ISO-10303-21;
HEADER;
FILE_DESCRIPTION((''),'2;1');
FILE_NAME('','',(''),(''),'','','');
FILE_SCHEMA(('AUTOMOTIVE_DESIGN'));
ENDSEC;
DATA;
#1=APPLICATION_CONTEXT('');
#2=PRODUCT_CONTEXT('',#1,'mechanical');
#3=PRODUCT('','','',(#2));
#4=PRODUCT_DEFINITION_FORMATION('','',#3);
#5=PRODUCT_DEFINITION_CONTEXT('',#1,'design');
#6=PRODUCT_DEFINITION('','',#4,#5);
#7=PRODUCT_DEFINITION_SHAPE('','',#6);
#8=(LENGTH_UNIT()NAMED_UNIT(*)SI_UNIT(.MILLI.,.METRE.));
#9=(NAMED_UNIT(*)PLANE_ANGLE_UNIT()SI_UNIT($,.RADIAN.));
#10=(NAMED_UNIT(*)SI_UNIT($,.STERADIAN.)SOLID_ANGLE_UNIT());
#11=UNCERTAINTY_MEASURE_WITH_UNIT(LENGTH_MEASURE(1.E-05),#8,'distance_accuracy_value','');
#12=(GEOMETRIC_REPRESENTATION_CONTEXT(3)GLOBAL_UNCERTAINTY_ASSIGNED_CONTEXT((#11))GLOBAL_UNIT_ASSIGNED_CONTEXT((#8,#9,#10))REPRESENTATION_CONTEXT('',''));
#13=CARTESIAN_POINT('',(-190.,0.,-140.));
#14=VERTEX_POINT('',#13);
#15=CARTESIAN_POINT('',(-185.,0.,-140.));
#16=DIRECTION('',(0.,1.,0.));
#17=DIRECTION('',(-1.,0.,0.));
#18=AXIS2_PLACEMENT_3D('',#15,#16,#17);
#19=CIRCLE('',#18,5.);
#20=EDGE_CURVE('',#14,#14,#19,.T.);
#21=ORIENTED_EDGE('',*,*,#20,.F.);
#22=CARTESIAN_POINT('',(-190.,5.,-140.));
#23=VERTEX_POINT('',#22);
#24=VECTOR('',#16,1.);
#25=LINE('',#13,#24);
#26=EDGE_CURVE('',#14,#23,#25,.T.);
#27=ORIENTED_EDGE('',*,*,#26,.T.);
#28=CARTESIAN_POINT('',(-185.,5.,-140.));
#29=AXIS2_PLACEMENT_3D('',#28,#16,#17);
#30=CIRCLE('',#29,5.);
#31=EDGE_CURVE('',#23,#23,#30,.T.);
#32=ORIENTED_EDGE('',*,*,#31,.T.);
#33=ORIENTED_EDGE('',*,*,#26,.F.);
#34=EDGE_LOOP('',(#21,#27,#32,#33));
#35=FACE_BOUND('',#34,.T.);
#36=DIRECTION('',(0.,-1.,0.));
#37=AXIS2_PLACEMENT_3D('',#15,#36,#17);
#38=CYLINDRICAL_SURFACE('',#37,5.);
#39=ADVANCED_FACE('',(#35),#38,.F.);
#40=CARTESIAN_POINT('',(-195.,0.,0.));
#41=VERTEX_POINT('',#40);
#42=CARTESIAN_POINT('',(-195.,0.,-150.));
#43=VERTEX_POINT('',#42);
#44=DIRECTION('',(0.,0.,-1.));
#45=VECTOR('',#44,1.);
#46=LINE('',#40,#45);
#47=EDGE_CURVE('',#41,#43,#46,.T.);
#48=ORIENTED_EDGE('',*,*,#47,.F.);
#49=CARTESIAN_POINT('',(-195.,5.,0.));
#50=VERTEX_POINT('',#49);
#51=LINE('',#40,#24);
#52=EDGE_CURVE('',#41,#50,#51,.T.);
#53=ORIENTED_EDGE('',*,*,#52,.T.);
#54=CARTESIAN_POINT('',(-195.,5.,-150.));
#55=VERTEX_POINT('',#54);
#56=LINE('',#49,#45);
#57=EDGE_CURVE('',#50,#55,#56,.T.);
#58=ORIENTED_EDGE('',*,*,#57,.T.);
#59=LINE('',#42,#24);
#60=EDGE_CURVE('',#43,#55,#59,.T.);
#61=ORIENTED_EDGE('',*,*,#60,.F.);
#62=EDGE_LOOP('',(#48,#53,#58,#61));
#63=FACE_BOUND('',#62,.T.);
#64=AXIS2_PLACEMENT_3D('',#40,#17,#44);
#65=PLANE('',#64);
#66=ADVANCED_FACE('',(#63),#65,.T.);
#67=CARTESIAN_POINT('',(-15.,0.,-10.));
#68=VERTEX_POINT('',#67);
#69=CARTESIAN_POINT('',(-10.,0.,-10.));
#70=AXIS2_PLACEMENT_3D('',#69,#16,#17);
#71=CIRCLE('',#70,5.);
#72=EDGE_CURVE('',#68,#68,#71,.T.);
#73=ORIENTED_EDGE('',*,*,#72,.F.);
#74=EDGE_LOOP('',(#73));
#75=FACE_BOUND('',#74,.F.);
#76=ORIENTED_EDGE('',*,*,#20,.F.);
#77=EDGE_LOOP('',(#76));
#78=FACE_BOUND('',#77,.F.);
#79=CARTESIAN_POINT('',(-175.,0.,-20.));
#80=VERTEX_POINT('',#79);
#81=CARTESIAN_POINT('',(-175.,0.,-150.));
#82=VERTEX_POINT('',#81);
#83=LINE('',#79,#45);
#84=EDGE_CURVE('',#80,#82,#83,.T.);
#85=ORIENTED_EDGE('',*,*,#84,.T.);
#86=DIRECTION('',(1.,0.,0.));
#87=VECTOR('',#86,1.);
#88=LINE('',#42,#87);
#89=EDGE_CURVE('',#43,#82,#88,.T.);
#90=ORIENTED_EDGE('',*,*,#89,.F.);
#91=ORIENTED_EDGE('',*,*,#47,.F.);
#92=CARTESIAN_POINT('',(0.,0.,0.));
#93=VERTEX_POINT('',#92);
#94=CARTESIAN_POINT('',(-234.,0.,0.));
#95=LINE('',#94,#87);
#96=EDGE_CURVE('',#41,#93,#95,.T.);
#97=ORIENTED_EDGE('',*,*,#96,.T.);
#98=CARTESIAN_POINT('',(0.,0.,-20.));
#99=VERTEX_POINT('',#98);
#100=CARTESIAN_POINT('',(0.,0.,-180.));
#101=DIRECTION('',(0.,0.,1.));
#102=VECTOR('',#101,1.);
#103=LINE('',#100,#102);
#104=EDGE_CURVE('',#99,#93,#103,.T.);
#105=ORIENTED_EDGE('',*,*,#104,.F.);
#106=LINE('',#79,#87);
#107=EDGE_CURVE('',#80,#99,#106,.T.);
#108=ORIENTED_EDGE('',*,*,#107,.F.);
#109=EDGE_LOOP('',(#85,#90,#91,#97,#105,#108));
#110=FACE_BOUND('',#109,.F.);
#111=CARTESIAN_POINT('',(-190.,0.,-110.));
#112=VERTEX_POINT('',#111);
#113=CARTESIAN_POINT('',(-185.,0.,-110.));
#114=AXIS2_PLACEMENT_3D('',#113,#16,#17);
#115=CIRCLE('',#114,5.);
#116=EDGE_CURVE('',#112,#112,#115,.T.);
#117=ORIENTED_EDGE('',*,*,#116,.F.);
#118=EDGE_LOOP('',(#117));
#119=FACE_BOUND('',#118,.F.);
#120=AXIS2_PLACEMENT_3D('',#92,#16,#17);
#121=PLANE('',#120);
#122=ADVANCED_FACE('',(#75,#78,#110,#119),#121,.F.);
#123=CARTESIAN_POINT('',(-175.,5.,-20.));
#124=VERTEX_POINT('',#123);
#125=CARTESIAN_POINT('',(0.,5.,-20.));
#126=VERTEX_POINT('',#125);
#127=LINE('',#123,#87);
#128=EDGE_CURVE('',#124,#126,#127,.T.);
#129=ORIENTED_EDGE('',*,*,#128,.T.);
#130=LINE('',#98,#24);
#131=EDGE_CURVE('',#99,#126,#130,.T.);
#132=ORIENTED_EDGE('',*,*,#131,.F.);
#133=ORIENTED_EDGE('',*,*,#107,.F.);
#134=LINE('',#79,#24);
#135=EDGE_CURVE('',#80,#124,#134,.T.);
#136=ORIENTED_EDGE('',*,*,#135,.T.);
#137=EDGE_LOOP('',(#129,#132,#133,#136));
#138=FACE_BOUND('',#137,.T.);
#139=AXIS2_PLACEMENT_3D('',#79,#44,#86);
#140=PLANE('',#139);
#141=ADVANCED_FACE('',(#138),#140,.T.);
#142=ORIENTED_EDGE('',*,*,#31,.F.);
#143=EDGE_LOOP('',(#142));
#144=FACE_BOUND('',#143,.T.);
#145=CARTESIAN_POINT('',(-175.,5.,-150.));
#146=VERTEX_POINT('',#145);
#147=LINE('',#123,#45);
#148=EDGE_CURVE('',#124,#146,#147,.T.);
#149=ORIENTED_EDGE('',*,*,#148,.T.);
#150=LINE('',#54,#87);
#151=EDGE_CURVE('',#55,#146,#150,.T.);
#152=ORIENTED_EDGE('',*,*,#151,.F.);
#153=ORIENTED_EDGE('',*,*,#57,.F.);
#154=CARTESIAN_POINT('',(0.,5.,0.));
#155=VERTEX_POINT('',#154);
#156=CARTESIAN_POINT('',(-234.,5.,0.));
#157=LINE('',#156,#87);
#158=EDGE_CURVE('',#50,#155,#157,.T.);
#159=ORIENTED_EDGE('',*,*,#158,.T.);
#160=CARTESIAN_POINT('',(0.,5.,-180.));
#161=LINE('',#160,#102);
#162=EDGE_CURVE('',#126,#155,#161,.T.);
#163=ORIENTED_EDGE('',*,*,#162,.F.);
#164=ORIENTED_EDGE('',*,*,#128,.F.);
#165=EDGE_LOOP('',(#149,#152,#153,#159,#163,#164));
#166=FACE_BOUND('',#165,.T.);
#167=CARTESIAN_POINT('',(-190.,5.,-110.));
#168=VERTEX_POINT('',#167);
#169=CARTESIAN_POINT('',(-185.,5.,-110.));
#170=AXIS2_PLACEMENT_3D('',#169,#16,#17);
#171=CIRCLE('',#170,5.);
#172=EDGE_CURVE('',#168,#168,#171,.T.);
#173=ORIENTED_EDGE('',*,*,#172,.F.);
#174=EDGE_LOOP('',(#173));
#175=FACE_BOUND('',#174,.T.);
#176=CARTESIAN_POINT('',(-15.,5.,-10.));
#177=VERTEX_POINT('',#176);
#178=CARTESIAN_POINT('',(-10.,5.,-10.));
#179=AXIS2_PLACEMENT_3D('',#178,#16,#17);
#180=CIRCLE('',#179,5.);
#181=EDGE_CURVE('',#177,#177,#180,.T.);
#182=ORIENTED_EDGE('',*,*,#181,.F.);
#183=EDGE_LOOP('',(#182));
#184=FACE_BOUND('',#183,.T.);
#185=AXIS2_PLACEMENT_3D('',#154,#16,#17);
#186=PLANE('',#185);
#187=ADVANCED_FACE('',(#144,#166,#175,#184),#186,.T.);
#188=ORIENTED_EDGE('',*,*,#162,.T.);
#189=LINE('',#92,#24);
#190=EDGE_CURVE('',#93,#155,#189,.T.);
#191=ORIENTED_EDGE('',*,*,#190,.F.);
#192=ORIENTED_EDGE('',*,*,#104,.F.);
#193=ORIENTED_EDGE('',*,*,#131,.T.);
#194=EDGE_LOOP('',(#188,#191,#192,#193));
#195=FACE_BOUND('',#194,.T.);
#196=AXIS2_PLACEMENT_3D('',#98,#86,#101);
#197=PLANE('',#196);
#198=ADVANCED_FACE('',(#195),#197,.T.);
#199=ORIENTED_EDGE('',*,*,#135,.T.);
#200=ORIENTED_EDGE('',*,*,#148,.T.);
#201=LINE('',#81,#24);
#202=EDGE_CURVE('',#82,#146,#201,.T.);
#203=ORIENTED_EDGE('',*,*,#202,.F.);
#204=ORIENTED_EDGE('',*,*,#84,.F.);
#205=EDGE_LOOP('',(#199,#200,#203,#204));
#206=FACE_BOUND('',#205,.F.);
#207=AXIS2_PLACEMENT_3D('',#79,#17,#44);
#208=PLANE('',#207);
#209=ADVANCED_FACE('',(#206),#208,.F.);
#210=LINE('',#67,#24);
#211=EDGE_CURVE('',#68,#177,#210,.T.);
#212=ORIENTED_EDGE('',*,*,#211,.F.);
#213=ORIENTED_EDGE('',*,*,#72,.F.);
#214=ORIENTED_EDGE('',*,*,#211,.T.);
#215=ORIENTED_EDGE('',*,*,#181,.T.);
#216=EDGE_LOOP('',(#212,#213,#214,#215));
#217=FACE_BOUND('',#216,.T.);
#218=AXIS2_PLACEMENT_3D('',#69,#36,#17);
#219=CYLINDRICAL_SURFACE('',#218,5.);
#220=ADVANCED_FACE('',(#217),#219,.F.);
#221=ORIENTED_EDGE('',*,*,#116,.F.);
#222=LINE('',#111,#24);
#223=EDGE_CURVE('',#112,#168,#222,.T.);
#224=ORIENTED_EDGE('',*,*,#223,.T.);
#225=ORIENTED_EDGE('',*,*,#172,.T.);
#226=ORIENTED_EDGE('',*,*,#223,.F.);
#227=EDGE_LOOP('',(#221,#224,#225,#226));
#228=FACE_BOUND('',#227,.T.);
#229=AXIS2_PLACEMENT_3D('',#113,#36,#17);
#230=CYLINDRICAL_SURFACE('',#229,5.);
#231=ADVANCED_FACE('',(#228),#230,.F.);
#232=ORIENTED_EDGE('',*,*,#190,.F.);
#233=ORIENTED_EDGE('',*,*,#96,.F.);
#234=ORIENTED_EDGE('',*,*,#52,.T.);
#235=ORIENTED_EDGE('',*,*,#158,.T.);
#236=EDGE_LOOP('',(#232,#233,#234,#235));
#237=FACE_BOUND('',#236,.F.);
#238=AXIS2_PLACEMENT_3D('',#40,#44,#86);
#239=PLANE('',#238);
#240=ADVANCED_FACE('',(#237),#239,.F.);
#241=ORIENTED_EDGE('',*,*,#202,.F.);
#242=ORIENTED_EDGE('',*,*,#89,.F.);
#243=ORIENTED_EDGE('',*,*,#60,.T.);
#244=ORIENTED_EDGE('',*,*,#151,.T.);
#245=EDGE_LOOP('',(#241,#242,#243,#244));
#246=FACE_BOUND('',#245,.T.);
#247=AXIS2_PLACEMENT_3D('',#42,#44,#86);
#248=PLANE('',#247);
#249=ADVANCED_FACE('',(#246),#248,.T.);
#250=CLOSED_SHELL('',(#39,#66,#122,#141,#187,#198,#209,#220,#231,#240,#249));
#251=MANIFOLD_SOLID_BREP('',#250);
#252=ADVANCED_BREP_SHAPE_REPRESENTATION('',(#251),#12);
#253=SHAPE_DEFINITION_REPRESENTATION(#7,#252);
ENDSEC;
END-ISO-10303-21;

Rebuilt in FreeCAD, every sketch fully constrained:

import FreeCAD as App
import Part
import Sketcher

V = App.Vector


def add_polygon(sketch, points):
    """Adds a closed chain of lines whose ends are joined by coincident constraints."""
    first, n = sketch.GeometryCount, len(points)
    for a, b in zip(points, points[1:] + points[:1]):
        sketch.addGeometry(Part.LineSegment(App.Vector(*a, 0), App.Vector(*b, 0)), False)
    for i in range(n):
        sketch.addConstraint(Sketcher.Constraint("Coincident", first + i, 2, first + (i + 1) % n, 1))

doc = App.newDocument("Part")
params = doc.addObject("Spreadsheet::Sheet", "Params")
for row, (alias, value) in enumerate([
    ("sketch1_diameter", "10 mm"),
    ("sketch1_width", "195 mm"),
    ("sketch1_width2", "20 mm"),
    ("sketch1_height", "150 mm"),
    ("pad1_length", "5 mm"),
], start=1):
    params.set(f"A{row}", alias)
    params.set(f"B{row}", "=" + value)
    params.setAlias(f"B{row}", alias)

body = doc.addObject("PartDesign::Body", "Body")

sketch1 = body.newObject("Sketcher::SketchObject", "Sketch")
sketch1.AttachmentSupport = (doc.getObject("XZ_Plane"), [""])
sketch1.MapMode = "FlatFace"
add_polygon(sketch1, [(-195, -150), (-195, 0), (0, 0), (0, -20), (-175, -20), (-175, -150)])
sketch1.addGeometry(Part.Circle(V(-185, -140, 0), V(0, 0, 1), 5), False)
sketch1.addGeometry(Part.Circle(V(-185, -110, 0), V(0, 0, 1), 5), False)
sketch1.addGeometry(Part.Circle(V(-10, -10, 0), V(0, 0, 1), 5), False)
sketch1.addConstraint(Sketcher.Constraint("Vertical", 0))
sketch1.addConstraint(Sketcher.Constraint("Horizontal", 1))
sketch1.addConstraint(Sketcher.Constraint("Vertical", 2))
sketch1.addConstraint(Sketcher.Constraint("Horizontal", 3))
sketch1.addConstraint(Sketcher.Constraint("Vertical", 4))
sketch1.addConstraint(Sketcher.Constraint("Horizontal", 5))
sketch1.addConstraint(Sketcher.Constraint("Coincident", 1, 2, -1, 1))
sketch1.addConstraint(Sketcher.Constraint("Equal", 6, 7))
sketch1.addConstraint(Sketcher.Constraint("Equal", 7, 8))
sketch1.addConstraint(Sketcher.Constraint("Vertical", 6, 3, 7, 3))
sketch1.addConstraint(Sketcher.Constraint("Equal", 5, 2))
sketch1.addConstraint(Sketcher.Constraint("Diameter", 6, 10.0))
sketch1.addConstraint(Sketcher.Constraint("DistanceX", 1, 1, 1, 2, 195.0))
sketch1.addConstraint(Sketcher.Constraint("DistanceX", 5, 2, 5, 1, 20.0))
sketch1.addConstraint(Sketcher.Constraint("DistanceY", 0, 1, 0, 2, 150.0))
sketch1.addConstraint(Sketcher.Constraint("DistanceX", 8, 3, -1, 1, 10.0))
sketch1.addConstraint(Sketcher.Constraint("DistanceY", 8, 3, -1, 1, 10.0))
sketch1.addConstraint(Sketcher.Constraint("DistanceX", 0, 2, 7, 3, 10.0))
sketch1.addConstraint(Sketcher.Constraint("DistanceY", 4, 2, 6, 3, 10.0))
sketch1.addConstraint(Sketcher.Constraint("DistanceY", 4, 2, 7, 3, 40.0))
sketch1.setExpression("Constraints[17]", "Params.sketch1_diameter")
sketch1.setExpression("Constraints[18]", "Params.sketch1_width")
sketch1.setExpression("Constraints[19]", "Params.sketch1_width2")
sketch1.setExpression("Constraints[20]", "Params.sketch1_height")
pad1 = body.newObject("PartDesign::Pad", "Pad")
pad1.Profile = sketch1
pad1.setExpression("Length", "Params.pad1_length")
pad1.Reversed = True

doc.recompute()
